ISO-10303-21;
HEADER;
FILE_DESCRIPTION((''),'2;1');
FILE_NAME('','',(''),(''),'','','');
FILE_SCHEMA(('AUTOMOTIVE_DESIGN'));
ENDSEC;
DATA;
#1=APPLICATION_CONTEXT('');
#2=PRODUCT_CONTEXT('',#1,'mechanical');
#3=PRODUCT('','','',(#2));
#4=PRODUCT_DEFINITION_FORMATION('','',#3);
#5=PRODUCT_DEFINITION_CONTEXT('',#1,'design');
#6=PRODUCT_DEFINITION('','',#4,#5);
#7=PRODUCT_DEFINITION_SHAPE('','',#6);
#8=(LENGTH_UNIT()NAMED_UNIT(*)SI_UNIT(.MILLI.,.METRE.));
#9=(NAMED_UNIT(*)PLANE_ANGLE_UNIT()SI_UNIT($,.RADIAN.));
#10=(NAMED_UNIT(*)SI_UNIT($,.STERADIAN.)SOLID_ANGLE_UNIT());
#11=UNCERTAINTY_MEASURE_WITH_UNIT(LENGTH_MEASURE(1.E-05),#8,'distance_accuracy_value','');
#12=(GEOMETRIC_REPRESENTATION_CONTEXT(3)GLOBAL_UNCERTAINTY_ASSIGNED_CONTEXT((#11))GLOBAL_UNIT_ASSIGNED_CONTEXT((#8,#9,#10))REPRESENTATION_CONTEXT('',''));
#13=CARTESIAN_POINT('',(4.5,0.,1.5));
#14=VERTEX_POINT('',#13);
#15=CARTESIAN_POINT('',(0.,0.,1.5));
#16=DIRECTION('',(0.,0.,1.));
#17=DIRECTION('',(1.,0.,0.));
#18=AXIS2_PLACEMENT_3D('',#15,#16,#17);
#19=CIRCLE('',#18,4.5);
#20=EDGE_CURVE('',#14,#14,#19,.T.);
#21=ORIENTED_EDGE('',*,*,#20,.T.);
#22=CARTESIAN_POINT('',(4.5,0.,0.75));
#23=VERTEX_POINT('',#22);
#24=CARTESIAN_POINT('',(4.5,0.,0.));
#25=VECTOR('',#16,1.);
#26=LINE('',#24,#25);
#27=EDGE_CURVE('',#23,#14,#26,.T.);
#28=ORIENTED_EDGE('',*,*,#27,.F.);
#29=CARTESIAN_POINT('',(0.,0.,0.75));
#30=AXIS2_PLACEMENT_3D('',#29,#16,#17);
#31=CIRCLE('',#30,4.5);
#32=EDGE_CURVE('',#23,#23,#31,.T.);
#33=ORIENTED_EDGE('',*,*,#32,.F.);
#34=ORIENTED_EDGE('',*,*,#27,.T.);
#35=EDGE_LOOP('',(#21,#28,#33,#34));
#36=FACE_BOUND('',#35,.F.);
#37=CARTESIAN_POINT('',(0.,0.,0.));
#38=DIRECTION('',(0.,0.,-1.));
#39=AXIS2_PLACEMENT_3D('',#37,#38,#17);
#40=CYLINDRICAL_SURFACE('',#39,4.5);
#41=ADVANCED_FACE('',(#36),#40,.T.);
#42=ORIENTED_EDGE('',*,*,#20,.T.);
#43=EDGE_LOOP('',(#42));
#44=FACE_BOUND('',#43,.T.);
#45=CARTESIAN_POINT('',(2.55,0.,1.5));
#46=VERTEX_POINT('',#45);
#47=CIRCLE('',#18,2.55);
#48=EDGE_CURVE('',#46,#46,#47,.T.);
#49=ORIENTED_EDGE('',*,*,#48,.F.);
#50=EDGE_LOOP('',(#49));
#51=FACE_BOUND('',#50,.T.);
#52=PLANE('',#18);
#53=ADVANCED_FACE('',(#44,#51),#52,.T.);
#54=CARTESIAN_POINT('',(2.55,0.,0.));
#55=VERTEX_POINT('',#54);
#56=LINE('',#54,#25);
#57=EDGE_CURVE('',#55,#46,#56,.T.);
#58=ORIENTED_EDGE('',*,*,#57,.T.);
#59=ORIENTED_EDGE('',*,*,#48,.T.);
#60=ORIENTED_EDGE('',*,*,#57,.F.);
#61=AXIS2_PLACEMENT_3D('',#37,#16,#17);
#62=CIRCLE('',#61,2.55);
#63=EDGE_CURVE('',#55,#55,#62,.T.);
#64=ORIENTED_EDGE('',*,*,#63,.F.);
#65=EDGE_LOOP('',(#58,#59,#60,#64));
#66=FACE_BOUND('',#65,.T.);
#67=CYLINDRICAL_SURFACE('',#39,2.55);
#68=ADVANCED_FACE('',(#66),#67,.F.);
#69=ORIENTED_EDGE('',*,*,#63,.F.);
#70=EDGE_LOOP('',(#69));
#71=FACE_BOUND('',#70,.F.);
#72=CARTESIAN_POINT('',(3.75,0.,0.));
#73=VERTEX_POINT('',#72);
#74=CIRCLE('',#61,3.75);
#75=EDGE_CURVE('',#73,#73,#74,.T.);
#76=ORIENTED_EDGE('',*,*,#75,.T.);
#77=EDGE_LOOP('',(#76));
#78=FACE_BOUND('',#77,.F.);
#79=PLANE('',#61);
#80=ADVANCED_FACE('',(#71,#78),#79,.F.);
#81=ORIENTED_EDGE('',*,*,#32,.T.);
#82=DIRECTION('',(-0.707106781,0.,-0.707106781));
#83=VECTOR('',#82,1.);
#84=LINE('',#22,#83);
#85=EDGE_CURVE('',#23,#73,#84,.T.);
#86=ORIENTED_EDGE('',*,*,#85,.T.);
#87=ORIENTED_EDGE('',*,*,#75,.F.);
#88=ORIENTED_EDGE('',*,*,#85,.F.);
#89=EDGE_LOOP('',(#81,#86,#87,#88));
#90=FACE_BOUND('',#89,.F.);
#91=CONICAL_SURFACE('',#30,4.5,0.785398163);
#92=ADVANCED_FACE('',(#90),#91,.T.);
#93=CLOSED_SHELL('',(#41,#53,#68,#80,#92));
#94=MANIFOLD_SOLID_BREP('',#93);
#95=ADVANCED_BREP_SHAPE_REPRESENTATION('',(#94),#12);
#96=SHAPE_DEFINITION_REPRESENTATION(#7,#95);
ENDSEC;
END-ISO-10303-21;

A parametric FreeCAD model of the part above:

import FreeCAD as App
import Part
import Sketcher
from FreeCAD import Vector
Q = App.Units.Quantity


def edges_at(feature, points):
    """Names of the edges that pass closest to the given points."""
    edges = feature.Shape.Edges
    near = lambda p: min(range(len(edges)), key=lambda i: edges[i].distToShape(Part.Vertex(*p))[0])
    return sorted({f"Edge{near(p) + 1}" for p in points})

doc = App.newDocument("Part")
params = doc.addObject("Spreadsheet::Sheet", "Params")
for row, (alias, value) in enumerate([
    ("sketch1_diameter", "9 mm"),
    ("sketch1_diameter2", "5.1 mm"),
    ("pad1_length", "1.5 mm"),
    ("chamfer_size", "0.75 mm"),
], start=1):
    params.set(f"A{row}", alias)
    params.set(f"B{row}", "=" + value)
    params.setAlias(f"B{row}", alias)

body = doc.addObject("PartDesign::Body", "Body")

sketch1 = body.newObject("Sketcher::SketchObject", "Sketch")
sketch1.AttachmentSupport = (doc.getObject("XY_Plane"), [""])
sketch1.MapMode = "FlatFace"
sketch1.addGeometry([
    Part.Circle(Vector(0, 0, 0), Vector(0, 0, 1), 4.5),
    Part.Circle(Vector(0, 0, 0), Vector(0, 0, 1), 2.5),
], False)
sketch1.addConstraint([
    Sketcher.Constraint("Coincident", 0, 3, -1, 1),
    Sketcher.Constraint("Coincident", 1, 3, -1, 1),
    Sketcher.Constraint("Diameter", 0, Q("9 mm")),
    Sketcher.Constraint("Diameter", 1, Q("5.1 mm")),
])
sketch1.setExpression("Constraints[2]", "Params.sketch1_diameter")
sketch1.setExpression("Constraints[3]", "Params.sketch1_diameter2")
pad1 = body.newObject("PartDesign::Pad", "Pad")
pad1.Profile = sketch1
pad1.setExpression("Length", "Params.pad1_length")
doc.recompute()

chamfer = body.newObject("PartDesign::Chamfer", "Chamfer")
chamfer.Base = (pad1, edges_at(pad1, [(-4.5, 0, 0)]))
chamfer.setExpression("Size", "Params.chamfer_size")

doc.recompute()
